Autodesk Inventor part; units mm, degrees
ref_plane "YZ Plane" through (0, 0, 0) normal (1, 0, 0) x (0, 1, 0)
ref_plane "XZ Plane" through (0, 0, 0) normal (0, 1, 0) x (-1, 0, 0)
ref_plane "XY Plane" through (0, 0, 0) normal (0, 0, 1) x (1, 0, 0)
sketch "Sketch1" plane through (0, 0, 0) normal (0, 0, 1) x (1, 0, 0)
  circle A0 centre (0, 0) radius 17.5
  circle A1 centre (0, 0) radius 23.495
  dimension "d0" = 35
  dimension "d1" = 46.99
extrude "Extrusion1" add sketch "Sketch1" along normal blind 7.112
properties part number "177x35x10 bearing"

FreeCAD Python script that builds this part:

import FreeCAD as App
import Part
import Sketcher
Q = App.Units.Quantity

doc = App.newDocument("Part")
body = doc.addObject("PartDesign::Body", "Body")

# Sketch on XY plane
sketch1 = body.newObject("Sketcher::SketchObject", "Sketch")
sketch1.AttachmentSupport = (doc.getObject("XY_Plane"), [""])
sketch1.MapMode = "FlatFace"
sketch1.addGeometry(Part.Circle(App.Vector(0, 0, 0), App.Vector(0, 0, 1), 23.495), False)
sketch1.addGeometry(Part.Circle(App.Vector(0, 0, 0), App.Vector(0, 0, 1), 17.5), False)
sketch1.addConstraint(Sketcher.Constraint("Coincident", 0, 3, -1, 1))
sketch1.addConstraint(Sketcher.Constraint("Coincident", 1, 3, -1, 1))
sketch1.addConstraint(Sketcher.Constraint("Diameter", 0, Q("1.85 in")))
sketch1.addConstraint(Sketcher.Constraint("Diameter", 1, 35.0))
pad1 = body.newObject("PartDesign::Pad", "Pad")
pad1.Profile = sketch1
pad1.Length = Q("0.28 in")

doc.recompute()
